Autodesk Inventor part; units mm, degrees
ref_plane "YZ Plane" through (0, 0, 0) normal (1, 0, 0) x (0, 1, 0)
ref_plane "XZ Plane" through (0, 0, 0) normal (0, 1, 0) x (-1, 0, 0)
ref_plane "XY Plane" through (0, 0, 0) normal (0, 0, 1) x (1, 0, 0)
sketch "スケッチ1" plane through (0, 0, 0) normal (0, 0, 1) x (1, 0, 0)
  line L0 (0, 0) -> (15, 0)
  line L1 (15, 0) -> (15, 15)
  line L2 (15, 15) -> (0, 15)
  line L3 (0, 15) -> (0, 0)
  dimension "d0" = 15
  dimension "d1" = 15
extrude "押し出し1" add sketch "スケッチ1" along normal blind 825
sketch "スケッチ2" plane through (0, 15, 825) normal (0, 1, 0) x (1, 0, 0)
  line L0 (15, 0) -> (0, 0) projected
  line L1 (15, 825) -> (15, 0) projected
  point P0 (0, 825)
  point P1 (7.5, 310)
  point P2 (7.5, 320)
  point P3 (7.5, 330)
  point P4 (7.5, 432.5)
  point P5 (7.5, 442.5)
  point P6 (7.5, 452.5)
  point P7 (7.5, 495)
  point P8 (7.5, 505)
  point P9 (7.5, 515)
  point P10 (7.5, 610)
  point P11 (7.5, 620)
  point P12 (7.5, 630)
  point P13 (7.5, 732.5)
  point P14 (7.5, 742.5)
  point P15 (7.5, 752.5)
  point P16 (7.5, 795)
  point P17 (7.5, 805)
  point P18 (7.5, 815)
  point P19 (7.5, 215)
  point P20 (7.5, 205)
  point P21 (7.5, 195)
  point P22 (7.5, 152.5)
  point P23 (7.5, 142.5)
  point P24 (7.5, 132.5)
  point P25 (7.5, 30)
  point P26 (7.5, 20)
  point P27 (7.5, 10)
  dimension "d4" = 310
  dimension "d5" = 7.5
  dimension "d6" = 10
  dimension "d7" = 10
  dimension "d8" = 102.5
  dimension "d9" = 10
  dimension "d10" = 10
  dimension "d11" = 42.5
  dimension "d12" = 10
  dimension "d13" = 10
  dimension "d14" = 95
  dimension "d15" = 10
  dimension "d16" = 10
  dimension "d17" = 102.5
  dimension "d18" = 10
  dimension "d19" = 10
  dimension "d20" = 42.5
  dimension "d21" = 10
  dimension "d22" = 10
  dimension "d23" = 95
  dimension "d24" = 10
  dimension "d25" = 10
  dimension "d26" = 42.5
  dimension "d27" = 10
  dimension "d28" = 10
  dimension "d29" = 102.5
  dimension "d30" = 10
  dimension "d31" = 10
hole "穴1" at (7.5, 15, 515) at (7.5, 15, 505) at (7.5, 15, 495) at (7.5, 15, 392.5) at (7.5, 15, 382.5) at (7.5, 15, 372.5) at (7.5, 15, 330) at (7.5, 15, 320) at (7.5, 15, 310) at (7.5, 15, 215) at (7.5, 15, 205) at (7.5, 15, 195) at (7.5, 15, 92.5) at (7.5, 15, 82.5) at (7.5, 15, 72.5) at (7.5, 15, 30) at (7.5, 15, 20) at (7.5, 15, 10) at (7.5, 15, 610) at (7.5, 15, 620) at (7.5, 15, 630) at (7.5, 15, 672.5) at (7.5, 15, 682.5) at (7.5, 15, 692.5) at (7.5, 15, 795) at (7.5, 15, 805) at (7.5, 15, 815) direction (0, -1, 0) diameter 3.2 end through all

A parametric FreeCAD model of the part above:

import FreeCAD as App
import Part
import Sketcher

V = App.Vector
Q = App.Units.Quantity


def add_polygon(sketch, points):
    """Adds a closed chain of lines whose ends are joined by coincident constraints."""
    first, n = sketch.GeometryCount, len(points)
    for a, b in zip(points, points[1:] + points[:1]):
        sketch.addGeometry(Part.LineSegment(App.Vector(*a, 0), App.Vector(*b, 0)), False)
    for i in range(n):
        sketch.addConstraint(Sketcher.Constraint("Coincident", first + i, 2, first + (i + 1) % n, 1))

doc = App.newDocument("Part")
body = doc.addObject("PartDesign::Body", "Body")

sketch1 = body.newObject("Sketcher::SketchObject", "Sketch")
sketch1.AttachmentSupport = (doc.getObject("XY_Plane"), [""])
sketch1.MapMode = "FlatFace"
add_polygon(sketch1, [(0, 15), (0, 0), (15, 0), (15, 15)])
sketch1.addConstraint([
    Sketcher.Constraint("Vertical", 0),
    Sketcher.Constraint("Horizontal", 1),
    Sketcher.Constraint("Vertical", 2),
    Sketcher.Constraint("Horizontal", 3),
    Sketcher.Constraint("Coincident", 0, 2, -1, 1),
    Sketcher.Constraint("Equal", 3, 0),
    Sketcher.Constraint("DistanceX", 1, 1, 1, 2, Q("15 mm")),
])
pad1 = body.newObject("PartDesign::Pad", "Pad")
pad1.Profile = sketch1
pad1.Length = 825

sketch2 = body.newObject("Sketcher::SketchObject", "Sketch001")
sketch2.AttachmentSupport = (doc.getObject("XZ_Plane"), [""])
sketch2.MapMode = "FlatFace"
sketch2.AttachmentOffset = App.Placement(V(0, 0, -15), App.Rotation())
sketch2.addGeometry([
    Part.Circle(V(7.5, 515, 0), V(0, 0, 1), 1.6),
    Part.Circle(V(7.5, 505, 0), V(0, 0, 1), 1.6),
    Part.Circle(V(7.5, 495, 0), V(0, 0, 1), 1.6),
    Part.Circle(V(7.5, 392.5, 0), V(0, 0, 1), 1.6),
    Part.Circle(V(7.5, 382.5, 0), V(0, 0, 1), 1.6),
    Part.Circle(V(7.5, 372.5, 0), V(0, 0, 1), 1.6),
    Part.Circle(V(7.5, 330, 0), V(0, 0, 1), 1.6),
    Part.Circle(V(7.5, 320, 0), V(0, 0, 1), 1.6),
    Part.Circle(V(7.5, 310, 0), V(0, 0, 1), 1.6),
    Part.Circle(V(7.5, 215, 0), V(0, 0, 1), 1.6),
    Part.Circle(V(7.5, 205, 0), V(0, 0, 1), 1.6),
    Part.Circle(V(7.5, 195, 0), V(0, 0, 1), 1.6),
    Part.Circle(V(7.5, 92.5, 0), V(0, 0, 1), 1.6),
    Part.Circle(V(7.5, 82.5, 0), V(0, 0, 1), 1.6),
    Part.Circle(V(7.5, 72.5, 0), V(0, 0, 1), 1.6),
    Part.Circle(V(7.5, 30, 0), V(0, 0, 1), 1.6),
    Part.Circle(V(7.5, 20, 0), V(0, 0, 1), 1.6),
    Part.Circle(V(7.5, 10, 0), V(0, 0, 1), 1.6),
    Part.Circle(V(7.5, 610, 0), V(0, 0, 1), 1.6),
    Part.Circle(V(7.5, 620, 0), V(0, 0, 1), 1.6),
    Part.Circle(V(7.5, 630, 0), V(0, 0, 1), 1.6),
    Part.Circle(V(7.5, 672.5, 0), V(0, 0, 1), 1.6),
    Part.Circle(V(7.5, 682.5, 0), V(0, 0, 1), 1.6),
    Part.Circle(V(7.5, 692.5, 0), V(0, 0, 1), 1.6),
    Part.Circle(V(7.5, 795, 0), V(0, 0, 1), 1.6),
    Part.Circle(V(7.5, 805, 0), V(0, 0, 1), 1.6),
    Part.Circle(V(7.5, 815, 0), V(0, 0, 1), 1.6),
], False)
sketch2.addConstraint([
    Sketcher.Constraint("Equal", 0, 1),
    Sketcher.Constraint("Equal", 1, 2),
    Sketcher.Constraint("Equal", 2, 3),
    Sketcher.Constraint("Equal", 3, 4),
    Sketcher.Constraint("Equal", 4, 5),
    Sketcher.Constraint("Equal", 5, 6),
    Sketcher.Constraint("Equal", 6, 7),
    Sketcher.Constraint("Equal", 7, 8),
    Sketcher.Constraint("Equal", 8, 9),
    Sketcher.Constraint("Equal", 9, 10),
    Sketcher.Constraint("Equal", 10, 11),
    Sketcher.Constraint("Equal", 11, 12),
    Sketcher.Constraint("Equal", 12, 13),
    Sketcher.Constraint("Equal", 13, 14),
    Sketcher.Constraint("Equal", 14, 15),
    Sketcher.Constraint("Equal", 15, 16),
    Sketcher.Constraint("Equal", 16, 17),
    Sketcher.Constraint("Equal", 17, 18),
    Sketcher.Constraint("Equal", 18, 19),
    Sketcher.Constraint("Equal", 19, 20),
    Sketcher.Constraint("Equal", 20, 21),
    Sketcher.Constraint("Equal", 21, 22),
    Sketcher.Constraint("Equal", 22, 23),
    Sketcher.Constraint("Equal", 23, 24),
    Sketcher.Constraint("Equal", 24, 25),
    Sketcher.Constraint("Equal", 25, 26),
    Sketcher.Constraint("Vertical", 0, 3, 1, 3),
    Sketcher.Constraint("Vertical", 1, 3, 2, 3),
    Sketcher.Constraint("Vertical", 2, 3, 3, 3),
    Sketcher.Constraint("Vertical", 3, 3, 4, 3),
    Sketcher.Constraint("Vertical", 4, 3, 5, 3),
    Sketcher.Constraint("Vertical", 5, 3, 6, 3),
    Sketcher.Constraint("Vertical", 6, 3, 7, 3),
    Sketcher.Constraint("Vertical", 7, 3, 8, 3),
    Sketcher.Constraint("Vertical", 8, 3, 9, 3),
    Sketcher.Constraint("Vertical", 9, 3, 10, 3),
    Sketcher.Constraint("Vertical", 10, 3, 11, 3),
    Sketcher.Constraint("Vertical", 11, 3, 12, 3),
    Sketcher.Constraint("Vertical", 12, 3, 13, 3),
    Sketcher.Constraint("Vertical", 13, 3, 14, 3),
    Sketcher.Constraint("Vertical", 14, 3, 15, 3),
    Sketcher.Constraint("Vertical", 15, 3, 16, 3),
    Sketcher.Constraint("Vertical", 16, 3, 17, 3),
    Sketcher.Constraint("Vertical", 17, 3, 18, 3),
    Sketcher.Constraint("Vertical", 18, 3, 19, 3),
    Sketcher.Constraint("Vertical", 19, 3, 20, 3),
    Sketcher.Constraint("Vertical", 20, 3, 21, 3),
    Sketcher.Constraint("Vertical", 21, 3, 22, 3),
    Sketcher.Constraint("Vertical", 22, 3, 23, 3),
    Sketcher.Constraint("Vertical", 23, 3, 24, 3),
    Sketcher.Constraint("Vertical", 24, 3, 25, 3),
    Sketcher.Constraint("Vertical", 25, 3, 26, 3),
    Sketcher.Constraint("Diameter", 0, Q("3.2 mm")),
    Sketcher.Constraint("DistanceY", -1, 1, 0, 3, Q("515 mm")),
    Sketcher.Constraint("DistanceY", -1, 1, 1, 3, Q("505 mm")),
    Sketcher.Constraint("DistanceY", -1, 1, 2, 3, Q("495 mm")),
    Sketcher.Constraint("DistanceY", -1, 1, 6, 3, Q("330 mm")),
    Sketcher.Constraint("DistanceY", -1, 1, 7, 3, Q("320 mm")),
    Sketcher.Constraint("DistanceY", -1, 1, 8, 3, Q("310 mm")),
    Sketcher.Constraint("DistanceY", -1, 1, 9, 3, Q("215 mm")),
    Sketcher.Constraint("DistanceY", -1, 1, 10, 3, Q("205 mm")),
    Sketcher.Constraint("DistanceY", -1, 1, 11, 3, Q("195 mm")),
    Sketcher.Constraint("DistanceY", -1, 1, 15, 3, Q("30 mm")),
    Sketcher.Constraint("DistanceY", -1, 1, 16, 3, Q("20 mm")),
    Sketcher.Constraint("DistanceY", -1, 1, 17, 3, Q("10 mm")),
    Sketcher.Constraint("DistanceY", -1, 1, 18, 3, Q("610 mm")),
    Sketcher.Constraint("DistanceY", -1, 1, 19, 3, Q("620 mm")),
    Sketcher.Constraint("DistanceY", -1, 1, 20, 3, Q("630 mm")),
    Sketcher.Constraint("DistanceY", -1, 1, 24, 3, Q("795 mm")),
    Sketcher.Constraint("DistanceY", -1, 1, 25, 3, Q("805 mm")),
    Sketcher.Constraint("DistanceY", -1, 1, 26, 3, Q("815 mm")),
    Sketcher.Constraint("DistanceY", 4, 3, 3, 3, Q("10 mm")),
    Sketcher.Constraint("DistanceY", 5, 3, 4, 3, Q("10 mm")),
    Sketcher.Constraint("DistanceY", 13, 3, 12, 3, Q("10 mm")),
    Sketcher.Constraint("DistanceY", 14, 3, 13, 3, Q("10 mm")),
    Sketcher.Constraint("DistanceY", 21, 3, 22, 3, Q("10 mm")),
    Sketcher.Constraint("DistanceY", 22, 3, 23, 3, Q("10 mm")),
    Sketcher.Constraint("DistanceX", -1, 1, 0, 3, Q("7.5 mm")),
    Sketcher.Constraint("DistanceY", -1, 1, 3, 3, Q("392.5 mm")),
    Sketcher.Constraint("DistanceY", -1, 1, 12, 3, Q("92.5 mm")),
    Sketcher.Constraint("DistanceY", -1, 1, 21, 3, Q("672.5 mm")),
])
doc.recompute()
hole = body.newObject("PartDesign::Hole", "Hole")
hole.Profile = sketch2
hole.ThreadType = "None"
hole.Diameter = 3.2
hole.DepthType = "ThroughAll"
hole.Reversed = True

doc.recompute()
